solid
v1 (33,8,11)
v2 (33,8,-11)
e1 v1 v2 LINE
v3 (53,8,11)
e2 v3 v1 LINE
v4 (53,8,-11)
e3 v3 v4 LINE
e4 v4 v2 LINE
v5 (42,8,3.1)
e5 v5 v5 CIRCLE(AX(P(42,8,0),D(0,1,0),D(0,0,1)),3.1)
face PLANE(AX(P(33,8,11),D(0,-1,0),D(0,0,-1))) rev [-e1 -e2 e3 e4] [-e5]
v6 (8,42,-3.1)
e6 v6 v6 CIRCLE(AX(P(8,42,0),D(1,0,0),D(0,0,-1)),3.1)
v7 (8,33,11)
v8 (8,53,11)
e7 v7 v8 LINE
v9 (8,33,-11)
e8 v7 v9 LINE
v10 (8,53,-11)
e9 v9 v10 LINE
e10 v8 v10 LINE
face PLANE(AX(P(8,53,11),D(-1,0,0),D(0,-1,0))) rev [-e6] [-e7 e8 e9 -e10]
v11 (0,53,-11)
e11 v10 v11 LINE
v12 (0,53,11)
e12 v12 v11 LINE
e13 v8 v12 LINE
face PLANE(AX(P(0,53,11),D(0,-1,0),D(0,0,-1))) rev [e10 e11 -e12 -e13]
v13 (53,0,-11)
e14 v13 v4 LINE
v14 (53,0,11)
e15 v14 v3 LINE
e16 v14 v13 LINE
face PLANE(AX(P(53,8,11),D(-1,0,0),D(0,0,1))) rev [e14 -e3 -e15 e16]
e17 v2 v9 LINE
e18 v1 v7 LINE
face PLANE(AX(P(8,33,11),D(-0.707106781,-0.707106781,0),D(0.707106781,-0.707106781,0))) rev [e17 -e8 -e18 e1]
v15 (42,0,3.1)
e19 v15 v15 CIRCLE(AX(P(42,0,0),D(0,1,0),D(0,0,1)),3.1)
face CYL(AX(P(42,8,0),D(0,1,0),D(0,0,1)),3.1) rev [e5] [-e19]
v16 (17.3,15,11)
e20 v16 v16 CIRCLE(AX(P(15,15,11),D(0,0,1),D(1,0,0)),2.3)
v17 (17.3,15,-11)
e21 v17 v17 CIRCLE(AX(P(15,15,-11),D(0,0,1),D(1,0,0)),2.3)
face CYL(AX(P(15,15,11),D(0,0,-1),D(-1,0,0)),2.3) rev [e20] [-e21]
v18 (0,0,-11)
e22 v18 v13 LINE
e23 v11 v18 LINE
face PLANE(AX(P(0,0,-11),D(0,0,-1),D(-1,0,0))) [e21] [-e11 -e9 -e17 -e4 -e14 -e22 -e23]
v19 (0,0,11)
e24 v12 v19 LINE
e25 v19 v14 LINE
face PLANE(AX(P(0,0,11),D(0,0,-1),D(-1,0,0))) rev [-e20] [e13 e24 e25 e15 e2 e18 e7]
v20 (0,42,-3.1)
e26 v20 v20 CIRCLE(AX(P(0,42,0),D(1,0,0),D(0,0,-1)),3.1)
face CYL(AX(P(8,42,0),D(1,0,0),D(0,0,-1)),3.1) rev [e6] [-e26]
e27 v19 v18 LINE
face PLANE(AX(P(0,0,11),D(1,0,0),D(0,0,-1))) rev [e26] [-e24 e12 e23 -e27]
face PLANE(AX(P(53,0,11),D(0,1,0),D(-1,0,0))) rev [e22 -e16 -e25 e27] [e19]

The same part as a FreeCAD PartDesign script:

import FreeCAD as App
import Part
import Sketcher
Q = App.Units.Quantity

doc = App.newDocument("Part")
body = doc.addObject("PartDesign::Body", "Body")

sketch1 = body.newObject("Sketcher::SketchObject", "Sketch")
sketch1.AttachmentSupport = (doc.getObject("XY_Plane"), [""])
sketch1.MapMode = "FlatFace"
sketch1.addGeometry(Part.LineSegment(App.Vector(0, 53, 0), App.Vector(0, 0, 0)), False)
sketch1.addGeometry(Part.LineSegment(App.Vector(0, 0, 0), App.Vector(53, 0, 0)), False)
sketch1.addGeometry(Part.LineSegment(App.Vector(53, 0, 0), App.Vector(53, 8, 0)), False)
sketch1.addGeometry(Part.LineSegment(App.Vector(53, 8, 0), App.Vector(33, 8, 0)), False)
sketch1.addGeometry(Part.LineSegment(App.Vector(33, 8, 0), App.Vector(8, 33, 0)), False)
sketch1.addGeometry(Part.LineSegment(App.Vector(8, 33, 0), App.Vector(8, 53, 0)), False)
sketch1.addGeometry(Part.LineSegment(App.Vector(8, 53, 0), App.Vector(0, 53, 0)), False)
sketch1.addGeometry(Part.Circle(App.Vector(15, 15, 0), App.Vector(0, 0, 1), 2.3), False)
sketch1.addConstraint(Sketcher.Constraint("Coincident", 0, 2, 1, 1))
sketch1.addConstraint(Sketcher.Constraint("Coincident", 1, 2, 2, 1))
sketch1.addConstraint(Sketcher.Constraint("Coincident", 2, 2, 3, 1))
sketch1.addConstraint(Sketcher.Constraint("Coincident", 3, 2, 4, 1))
sketch1.addConstraint(Sketcher.Constraint("Coincident", 4, 2, 5, 1))
sketch1.addConstraint(Sketcher.Constraint("Coincident", 5, 2, 6, 1))
sketch1.addConstraint(Sketcher.Constraint("Coincident", 6, 2, 0, 1))
sketch1.addConstraint(Sketcher.Constraint("Vertical", 0))
sketch1.addConstraint(Sketcher.Constraint("Horizontal", 1))
sketch1.addConstraint(Sketcher.Constraint("Vertical", 2))
sketch1.addConstraint(Sketcher.Constraint("Horizontal", 3))
sketch1.addConstraint(Sketcher.Constraint("Vertical", 5))
sketch1.addConstraint(Sketcher.Constraint("Horizontal", 6))
sketch1.addConstraint(Sketcher.Constraint("Coincident", 0, 2, -1, 1))
sketch1.addConstraint(Sketcher.Constraint("Equal", 1, 0))
sketch1.addConstraint(Sketcher.Constraint("Equal", 6, 2))
sketch1.addConstraint(Sketcher.Constraint("Equal", 3, 5))
sketch1.addConstraint(Sketcher.Constraint("Diameter", 7, Q("4.6 mm")))
sketch1.addConstraint(Sketcher.Constraint("DistanceX", 1, 1, 1, 2, Q("53 mm")))
sketch1.addConstraint(Sketcher.Constraint("DistanceX", 3, 2, 3, 1, Q("20 mm")))
sketch1.addConstraint(Sketcher.Constraint("DistanceX", 6, 2, 6, 1, Q("8 mm")))
sketch1.addConstraint(Sketcher.Constraint("DistanceX", -1, 1, 7, 3, Q("15 mm")))
sketch1.addConstraint(Sketcher.Constraint("DistanceY", -1, 1, 7, 3, Q("15 mm")))
pad1 = body.newObject("PartDesign::Pad", "Pad")
pad1.Profile = sketch1
pad1.Length = 22
pad1.Midplane = True

sketch2 = body.newObject("Sketcher::SketchObject", "Sketch001")
sketch2.AttachmentSupport = (doc.getObject("XZ_Plane"), [""])
sketch2.MapMode = "FlatFace"
sketch2.AttachmentOffset = App.Placement(App.Vector(0, 0, -8), App.Rotation())
sketch2.addGeometry(Part.Circle(App.Vector(42, 0, 0), App.Vector(0, 0, 1), 3.1), False)
sketch2.addConstraint(Sketcher.Constraint("PointOnObject", 0, 3, -1))
sketch2.addConstraint(Sketcher.Constraint("Diameter", 0, Q("6.2 mm")))
sketch2.addConstraint(Sketcher.Constraint("DistanceX", -1, 1, 0, 3, Q("42 mm")))
doc.recompute()
hole = body.newObject("PartDesign::Hole", "Hole")
hole.Profile = sketch2
hole.ThreadType = "None"
hole.Diameter = 6.2
hole.DepthType = "ThroughAll"
hole.Reversed = True

sketch3 = body.newObject("Sketcher::SketchObject", "Sketch002")
sketch3.AttachmentSupport = (doc.getObject("YZ_Plane"), [""])
sketch3.MapMode = "FlatFace"
sketch3.AttachmentOffset = App.Placement(App.Vector(0, 0, 8), App.Rotation())
sketch3.addGeometry(Part.Circle(App.Vector(42, 0, 0), App.Vector(0, 0, 1), 3.1), False)
sketch3.addConstraint(Sketcher.Constraint("PointOnObject", 0, 3, -1))
sketch3.addConstraint(Sketcher.Constraint("Diameter", 0, Q("6.2 mm")))
sketch3.addConstraint(Sketcher.Constraint("DistanceX", -1, 1, 0, 3, Q("42 mm")))
doc.recompute()
hole2 = body.newObject("PartDesign::Hole", "Hole001")
hole2.Profile = sketch3
hole2.ThreadType = "None"
hole2.Diameter = 6.2
hole2.DepthType = "ThroughAll"

doc.recompute()
